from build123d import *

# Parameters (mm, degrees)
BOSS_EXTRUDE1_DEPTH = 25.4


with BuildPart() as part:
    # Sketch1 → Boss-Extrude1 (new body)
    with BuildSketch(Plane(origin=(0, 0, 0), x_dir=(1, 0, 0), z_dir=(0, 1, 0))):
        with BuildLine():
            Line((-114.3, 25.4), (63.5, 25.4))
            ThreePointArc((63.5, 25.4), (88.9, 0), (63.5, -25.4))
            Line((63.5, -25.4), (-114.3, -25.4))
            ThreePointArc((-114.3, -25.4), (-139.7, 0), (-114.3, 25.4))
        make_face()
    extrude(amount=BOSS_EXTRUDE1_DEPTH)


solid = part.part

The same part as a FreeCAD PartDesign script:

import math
import FreeCAD as App
import Part
import Sketcher
from FreeCAD import Vector
Q = App.Units.Quantity

doc = App.newDocument("Part")
body = doc.addObject("PartDesign::Body", "Body")

sketch1 = body.newObject("Sketcher::SketchObject", "Sketch")
sketch1.AttachmentSupport = (doc.getObject("XZ_Plane"), [""])
sketch1.MapMode = "FlatFace"
sketch1.addGeometry([
    Part.LineSegment(Vector(64, -25, 0), Vector(-114, -25, 0)),
    Part.ArcOfCircle(Part.Circle(Vector(-114, 0, 0), Vector(0, 0, 1), 25), math.radians(90), math.radians(270)),
    Part.LineSegment(Vector(-114, 25, 0), Vector(64, 25, 0)),
    Part.ArcOfCircle(Part.Circle(Vector(64, 0, 0), Vector(0, 0, 1), 25), math.radians(-90), math.radians(90)),
], False)
sketch1.addConstraint([
    Sketcher.Constraint("Tangent", 0, 2, 1, 2),
    Sketcher.Constraint("Tangent", 1, 1, 2, 1),
    Sketcher.Constraint("Tangent", 2, 2, 3, 2),
    Sketcher.Constraint("Tangent", 3, 1, 0, 1),
    Sketcher.Constraint("Horizontal", 0),
    Sketcher.Constraint("Horizontal", 2),
    Sketcher.Constraint("PointOnObject", 1, 3, -1),
    Sketcher.Constraint("Radius", 1, Q("1 in")),
    Sketcher.Constraint("DistanceX", 0, 2, 0, 1, Q("7 in")),
    Sketcher.Constraint("DistanceX", 1, 3, -1, 1, Q("4.5 in")),
])
pad1 = body.newObject("PartDesign::Pad", "Pad")
pad1.Profile = sketch1
pad1.Length = Q("1 in")
pad1.Reversed = True

doc.recompute()
